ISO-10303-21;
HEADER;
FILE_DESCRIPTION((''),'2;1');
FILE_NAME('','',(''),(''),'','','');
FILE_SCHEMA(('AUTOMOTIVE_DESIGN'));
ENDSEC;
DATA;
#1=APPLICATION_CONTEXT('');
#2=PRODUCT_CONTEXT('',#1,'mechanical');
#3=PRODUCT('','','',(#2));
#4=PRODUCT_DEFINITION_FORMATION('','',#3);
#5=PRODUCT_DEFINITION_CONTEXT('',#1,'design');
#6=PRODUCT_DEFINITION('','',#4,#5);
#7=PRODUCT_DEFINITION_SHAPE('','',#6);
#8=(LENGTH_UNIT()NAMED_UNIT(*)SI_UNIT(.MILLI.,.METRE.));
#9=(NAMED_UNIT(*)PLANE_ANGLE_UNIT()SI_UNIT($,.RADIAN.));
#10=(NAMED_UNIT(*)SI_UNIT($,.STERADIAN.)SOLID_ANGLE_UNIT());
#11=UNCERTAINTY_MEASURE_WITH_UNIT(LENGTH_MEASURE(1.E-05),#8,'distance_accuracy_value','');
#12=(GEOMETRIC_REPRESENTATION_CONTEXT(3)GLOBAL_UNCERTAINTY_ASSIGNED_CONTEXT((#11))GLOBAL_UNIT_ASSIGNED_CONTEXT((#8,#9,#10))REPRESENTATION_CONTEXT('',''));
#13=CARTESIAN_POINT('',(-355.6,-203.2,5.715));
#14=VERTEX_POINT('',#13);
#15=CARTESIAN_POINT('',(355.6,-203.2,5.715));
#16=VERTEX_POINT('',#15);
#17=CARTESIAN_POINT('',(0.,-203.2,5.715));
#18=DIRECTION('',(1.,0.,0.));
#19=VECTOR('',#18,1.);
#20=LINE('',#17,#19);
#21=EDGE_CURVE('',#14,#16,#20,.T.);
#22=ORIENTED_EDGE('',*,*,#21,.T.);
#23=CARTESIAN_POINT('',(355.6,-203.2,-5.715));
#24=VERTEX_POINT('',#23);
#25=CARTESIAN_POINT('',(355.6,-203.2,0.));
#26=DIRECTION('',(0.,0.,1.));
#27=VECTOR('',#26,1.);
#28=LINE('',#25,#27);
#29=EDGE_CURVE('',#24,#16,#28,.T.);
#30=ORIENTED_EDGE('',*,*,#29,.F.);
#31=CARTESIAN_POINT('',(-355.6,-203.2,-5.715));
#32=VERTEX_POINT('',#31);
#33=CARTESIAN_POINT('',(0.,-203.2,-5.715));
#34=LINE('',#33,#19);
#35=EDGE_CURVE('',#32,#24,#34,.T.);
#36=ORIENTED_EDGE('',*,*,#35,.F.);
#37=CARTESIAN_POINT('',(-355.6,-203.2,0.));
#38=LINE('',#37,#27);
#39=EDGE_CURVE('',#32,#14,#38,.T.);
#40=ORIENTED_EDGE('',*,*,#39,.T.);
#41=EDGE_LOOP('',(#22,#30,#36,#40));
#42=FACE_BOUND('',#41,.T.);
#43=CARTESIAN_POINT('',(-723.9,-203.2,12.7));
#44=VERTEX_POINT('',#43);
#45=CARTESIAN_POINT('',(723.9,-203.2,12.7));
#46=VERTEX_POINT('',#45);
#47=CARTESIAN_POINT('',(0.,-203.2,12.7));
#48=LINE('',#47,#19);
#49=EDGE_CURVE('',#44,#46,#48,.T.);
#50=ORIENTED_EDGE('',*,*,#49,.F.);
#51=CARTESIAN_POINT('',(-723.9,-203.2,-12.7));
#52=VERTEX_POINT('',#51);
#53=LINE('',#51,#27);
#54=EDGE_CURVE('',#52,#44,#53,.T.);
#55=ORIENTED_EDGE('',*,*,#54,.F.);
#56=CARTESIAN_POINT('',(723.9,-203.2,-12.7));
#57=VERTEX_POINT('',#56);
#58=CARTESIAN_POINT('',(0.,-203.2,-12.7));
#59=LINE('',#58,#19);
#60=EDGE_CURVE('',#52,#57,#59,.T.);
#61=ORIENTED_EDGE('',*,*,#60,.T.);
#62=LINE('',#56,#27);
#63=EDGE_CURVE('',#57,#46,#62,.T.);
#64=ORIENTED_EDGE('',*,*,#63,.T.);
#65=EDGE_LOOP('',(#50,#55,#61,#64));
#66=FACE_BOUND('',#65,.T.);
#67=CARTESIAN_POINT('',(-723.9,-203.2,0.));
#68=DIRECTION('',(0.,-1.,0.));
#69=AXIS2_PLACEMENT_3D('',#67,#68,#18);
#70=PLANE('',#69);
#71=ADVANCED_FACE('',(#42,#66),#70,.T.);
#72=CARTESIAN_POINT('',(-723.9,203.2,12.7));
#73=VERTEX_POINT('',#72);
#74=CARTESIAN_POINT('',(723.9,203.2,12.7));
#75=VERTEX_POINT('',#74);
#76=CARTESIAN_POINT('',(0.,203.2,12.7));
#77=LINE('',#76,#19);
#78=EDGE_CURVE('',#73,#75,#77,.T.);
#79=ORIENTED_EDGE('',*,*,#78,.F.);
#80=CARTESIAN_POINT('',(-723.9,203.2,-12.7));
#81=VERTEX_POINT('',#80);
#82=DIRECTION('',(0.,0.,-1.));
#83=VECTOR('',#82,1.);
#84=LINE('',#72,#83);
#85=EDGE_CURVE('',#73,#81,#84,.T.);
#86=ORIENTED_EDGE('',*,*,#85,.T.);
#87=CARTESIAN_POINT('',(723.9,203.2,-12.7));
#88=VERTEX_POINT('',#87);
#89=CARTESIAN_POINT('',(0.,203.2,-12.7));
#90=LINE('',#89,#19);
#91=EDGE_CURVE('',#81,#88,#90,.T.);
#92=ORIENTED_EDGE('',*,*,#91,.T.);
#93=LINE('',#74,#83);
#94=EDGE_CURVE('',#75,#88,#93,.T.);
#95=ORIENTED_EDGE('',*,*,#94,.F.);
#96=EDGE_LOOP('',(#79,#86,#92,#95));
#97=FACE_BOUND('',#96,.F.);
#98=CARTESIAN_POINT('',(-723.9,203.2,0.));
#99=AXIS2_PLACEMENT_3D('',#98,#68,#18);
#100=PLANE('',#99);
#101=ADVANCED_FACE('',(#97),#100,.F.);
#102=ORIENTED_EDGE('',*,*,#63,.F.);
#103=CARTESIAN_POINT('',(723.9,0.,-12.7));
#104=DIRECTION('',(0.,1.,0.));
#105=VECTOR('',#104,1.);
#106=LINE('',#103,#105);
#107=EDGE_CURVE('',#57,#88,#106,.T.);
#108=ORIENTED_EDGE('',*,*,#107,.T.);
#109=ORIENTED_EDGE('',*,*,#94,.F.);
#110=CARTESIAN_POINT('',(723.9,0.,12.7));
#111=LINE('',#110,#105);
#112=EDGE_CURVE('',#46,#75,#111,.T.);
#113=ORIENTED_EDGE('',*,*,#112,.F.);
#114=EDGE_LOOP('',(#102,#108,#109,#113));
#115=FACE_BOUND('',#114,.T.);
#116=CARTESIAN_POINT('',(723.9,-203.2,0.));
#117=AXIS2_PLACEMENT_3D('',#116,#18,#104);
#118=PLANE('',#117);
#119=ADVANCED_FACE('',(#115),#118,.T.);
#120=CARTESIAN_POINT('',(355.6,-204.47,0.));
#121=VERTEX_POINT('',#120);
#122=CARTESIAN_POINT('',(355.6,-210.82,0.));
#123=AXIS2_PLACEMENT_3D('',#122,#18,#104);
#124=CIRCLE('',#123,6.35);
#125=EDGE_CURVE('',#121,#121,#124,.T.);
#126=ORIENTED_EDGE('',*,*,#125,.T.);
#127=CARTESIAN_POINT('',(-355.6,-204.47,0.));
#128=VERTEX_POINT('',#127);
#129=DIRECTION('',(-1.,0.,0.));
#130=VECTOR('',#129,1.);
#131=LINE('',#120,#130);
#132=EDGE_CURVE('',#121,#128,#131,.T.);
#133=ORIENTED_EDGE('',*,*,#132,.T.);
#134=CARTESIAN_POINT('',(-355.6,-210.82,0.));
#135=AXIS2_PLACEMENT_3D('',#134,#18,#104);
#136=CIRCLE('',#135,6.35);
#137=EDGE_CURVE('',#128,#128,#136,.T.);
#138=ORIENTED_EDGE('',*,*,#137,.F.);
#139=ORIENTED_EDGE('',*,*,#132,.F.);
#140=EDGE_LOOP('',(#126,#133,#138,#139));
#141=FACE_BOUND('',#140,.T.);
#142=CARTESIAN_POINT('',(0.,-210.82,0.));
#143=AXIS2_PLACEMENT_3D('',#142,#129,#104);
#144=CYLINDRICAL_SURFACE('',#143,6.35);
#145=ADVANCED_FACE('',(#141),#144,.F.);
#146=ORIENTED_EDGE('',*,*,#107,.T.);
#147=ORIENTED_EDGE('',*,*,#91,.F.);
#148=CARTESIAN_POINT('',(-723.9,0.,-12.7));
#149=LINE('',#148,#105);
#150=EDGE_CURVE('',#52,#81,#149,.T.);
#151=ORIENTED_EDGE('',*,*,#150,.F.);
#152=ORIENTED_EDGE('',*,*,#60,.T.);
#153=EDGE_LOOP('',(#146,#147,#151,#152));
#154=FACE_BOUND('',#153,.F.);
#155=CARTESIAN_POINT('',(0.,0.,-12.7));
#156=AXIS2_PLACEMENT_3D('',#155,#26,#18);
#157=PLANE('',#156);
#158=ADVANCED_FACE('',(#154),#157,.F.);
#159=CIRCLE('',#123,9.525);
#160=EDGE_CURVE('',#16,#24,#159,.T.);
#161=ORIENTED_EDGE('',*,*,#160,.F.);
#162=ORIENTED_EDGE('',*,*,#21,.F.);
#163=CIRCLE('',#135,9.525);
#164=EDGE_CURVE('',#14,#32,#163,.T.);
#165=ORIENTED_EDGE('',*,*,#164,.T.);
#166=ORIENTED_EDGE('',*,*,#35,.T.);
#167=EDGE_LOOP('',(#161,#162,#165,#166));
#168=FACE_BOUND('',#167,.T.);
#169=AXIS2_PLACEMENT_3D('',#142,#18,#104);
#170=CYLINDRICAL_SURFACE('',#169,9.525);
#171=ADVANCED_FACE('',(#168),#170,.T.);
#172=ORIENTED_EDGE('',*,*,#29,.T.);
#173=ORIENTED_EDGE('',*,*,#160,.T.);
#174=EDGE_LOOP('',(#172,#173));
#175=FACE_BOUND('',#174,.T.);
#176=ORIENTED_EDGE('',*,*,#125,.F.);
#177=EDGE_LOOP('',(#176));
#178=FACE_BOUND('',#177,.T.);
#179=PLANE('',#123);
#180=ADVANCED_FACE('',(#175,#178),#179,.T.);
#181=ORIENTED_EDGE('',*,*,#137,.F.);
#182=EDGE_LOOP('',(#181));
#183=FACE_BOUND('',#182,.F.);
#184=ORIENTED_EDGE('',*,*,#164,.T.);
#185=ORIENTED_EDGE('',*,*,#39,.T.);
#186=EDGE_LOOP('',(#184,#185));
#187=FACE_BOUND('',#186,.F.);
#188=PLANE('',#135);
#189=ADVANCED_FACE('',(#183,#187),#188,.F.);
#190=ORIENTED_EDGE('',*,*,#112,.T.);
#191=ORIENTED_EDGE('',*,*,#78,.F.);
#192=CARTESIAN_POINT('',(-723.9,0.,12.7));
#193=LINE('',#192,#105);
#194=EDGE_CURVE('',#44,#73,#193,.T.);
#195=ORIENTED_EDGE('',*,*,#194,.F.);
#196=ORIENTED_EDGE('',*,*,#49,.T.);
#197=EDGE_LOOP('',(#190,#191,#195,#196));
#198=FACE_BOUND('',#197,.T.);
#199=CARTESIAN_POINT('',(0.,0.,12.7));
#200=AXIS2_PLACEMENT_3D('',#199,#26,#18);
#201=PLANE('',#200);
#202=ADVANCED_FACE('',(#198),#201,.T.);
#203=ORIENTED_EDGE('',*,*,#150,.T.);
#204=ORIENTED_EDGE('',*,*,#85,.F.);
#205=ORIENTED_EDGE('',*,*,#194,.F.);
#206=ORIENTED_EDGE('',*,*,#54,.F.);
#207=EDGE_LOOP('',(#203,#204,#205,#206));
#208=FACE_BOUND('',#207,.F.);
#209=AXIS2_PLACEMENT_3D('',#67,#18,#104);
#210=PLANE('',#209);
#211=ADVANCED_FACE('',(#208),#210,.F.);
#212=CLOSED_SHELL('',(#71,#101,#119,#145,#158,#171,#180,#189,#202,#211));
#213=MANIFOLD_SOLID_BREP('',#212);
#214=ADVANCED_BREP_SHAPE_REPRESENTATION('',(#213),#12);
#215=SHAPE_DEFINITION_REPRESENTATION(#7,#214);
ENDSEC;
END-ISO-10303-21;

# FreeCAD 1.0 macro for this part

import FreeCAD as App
import Part
import Sketcher
from FreeCAD import Vector
Q = App.Units.Quantity

doc = App.newDocument("Part")
body = doc.addObject("PartDesign::Body", "Body")

# Sketch on XY plane
sketch1 = doc.addObject("Sketcher::SketchObject", "Sketch")
body.addObject(sketch1)
sketch1.AttachmentSupport = (doc.XY_Plane, [""])
sketch1.MapMode = "FlatFace"
sketch1.addGeometry([
    Part.LineSegment(Vector(-724, 203, 0), Vector(-724, -203, 0)),
    Part.LineSegment(Vector(-724, -203, 0), Vector(724, -203, 0)),
    Part.LineSegment(Vector(724, -203, 0), Vector(724, 203, 0)),
    Part.LineSegment(Vector(724, 203, 0), Vector(-724, 203, 0)),
], False)
sketch1.addConstraint([
    Sketcher.Constraint("Coincident", 0, 2, 1, 1),
    Sketcher.Constraint("Coincident", 1, 2, 2, 1),
    Sketcher.Constraint("Coincident", 2, 2, 3, 1),
    Sketcher.Constraint("Coincident", 3, 2, 0, 1),
    Sketcher.Constraint("Vertical", 0),
    Sketcher.Constraint("Horizontal", 1),
    Sketcher.Constraint("Vertical", 2),
    Sketcher.Constraint("Horizontal", 3),
    Sketcher.Constraint("Symmetric", 0, 2, 2, 2, -1, 1),
    Sketcher.Constraint("DistanceX", 1, 1, 1, 2, Q("57 in")),
    Sketcher.Constraint("DistanceY", 0, 2, 0, 1, Q("16 in")),
])
pad1 = doc.addObject("PartDesign::Pad", "Pad")
body.addObject(pad1)
pad1.Profile = sketch1
pad1.Length = Q("1 in")
pad1.Midplane = True

# Sketch on YZ plane
sketch2 = doc.addObject("Sketcher::SketchObject", "Sketch001")
body.addObject(sketch2)
sketch2.AttachmentSupport = (doc.YZ_Plane, [""])
sketch2.MapMode = "FlatFace"
sketch2.addGeometry([
    Part.Circle(Vector(-211, 0, 0), Vector(0, 0, 1), 10),
    Part.Circle(Vector(-211, 0, 0), Vector(0, 0, 1), 6),
], False)
sketch2.addConstraint([
    Sketcher.Constraint("Coincident", 1, 3, 0, 3),
    Sketcher.Constraint("PointOnObject", 0, 3, -1),
    Sketcher.Constraint("Diameter", 1, Q("0.5 in")),
    Sketcher.Constraint("Diameter", 0, Q("0.75 in")),
    Sketcher.Constraint("DistanceX", 0, 3, -1, 1, Q("8.3 in")),
])
pad2 = doc.addObject("PartDesign::Pad", "Pad001")
body.addObject(pad2)
pad2.Profile = sketch2
pad2.Length = Q("28 in")
pad2.Midplane = True

doc.recompute()
